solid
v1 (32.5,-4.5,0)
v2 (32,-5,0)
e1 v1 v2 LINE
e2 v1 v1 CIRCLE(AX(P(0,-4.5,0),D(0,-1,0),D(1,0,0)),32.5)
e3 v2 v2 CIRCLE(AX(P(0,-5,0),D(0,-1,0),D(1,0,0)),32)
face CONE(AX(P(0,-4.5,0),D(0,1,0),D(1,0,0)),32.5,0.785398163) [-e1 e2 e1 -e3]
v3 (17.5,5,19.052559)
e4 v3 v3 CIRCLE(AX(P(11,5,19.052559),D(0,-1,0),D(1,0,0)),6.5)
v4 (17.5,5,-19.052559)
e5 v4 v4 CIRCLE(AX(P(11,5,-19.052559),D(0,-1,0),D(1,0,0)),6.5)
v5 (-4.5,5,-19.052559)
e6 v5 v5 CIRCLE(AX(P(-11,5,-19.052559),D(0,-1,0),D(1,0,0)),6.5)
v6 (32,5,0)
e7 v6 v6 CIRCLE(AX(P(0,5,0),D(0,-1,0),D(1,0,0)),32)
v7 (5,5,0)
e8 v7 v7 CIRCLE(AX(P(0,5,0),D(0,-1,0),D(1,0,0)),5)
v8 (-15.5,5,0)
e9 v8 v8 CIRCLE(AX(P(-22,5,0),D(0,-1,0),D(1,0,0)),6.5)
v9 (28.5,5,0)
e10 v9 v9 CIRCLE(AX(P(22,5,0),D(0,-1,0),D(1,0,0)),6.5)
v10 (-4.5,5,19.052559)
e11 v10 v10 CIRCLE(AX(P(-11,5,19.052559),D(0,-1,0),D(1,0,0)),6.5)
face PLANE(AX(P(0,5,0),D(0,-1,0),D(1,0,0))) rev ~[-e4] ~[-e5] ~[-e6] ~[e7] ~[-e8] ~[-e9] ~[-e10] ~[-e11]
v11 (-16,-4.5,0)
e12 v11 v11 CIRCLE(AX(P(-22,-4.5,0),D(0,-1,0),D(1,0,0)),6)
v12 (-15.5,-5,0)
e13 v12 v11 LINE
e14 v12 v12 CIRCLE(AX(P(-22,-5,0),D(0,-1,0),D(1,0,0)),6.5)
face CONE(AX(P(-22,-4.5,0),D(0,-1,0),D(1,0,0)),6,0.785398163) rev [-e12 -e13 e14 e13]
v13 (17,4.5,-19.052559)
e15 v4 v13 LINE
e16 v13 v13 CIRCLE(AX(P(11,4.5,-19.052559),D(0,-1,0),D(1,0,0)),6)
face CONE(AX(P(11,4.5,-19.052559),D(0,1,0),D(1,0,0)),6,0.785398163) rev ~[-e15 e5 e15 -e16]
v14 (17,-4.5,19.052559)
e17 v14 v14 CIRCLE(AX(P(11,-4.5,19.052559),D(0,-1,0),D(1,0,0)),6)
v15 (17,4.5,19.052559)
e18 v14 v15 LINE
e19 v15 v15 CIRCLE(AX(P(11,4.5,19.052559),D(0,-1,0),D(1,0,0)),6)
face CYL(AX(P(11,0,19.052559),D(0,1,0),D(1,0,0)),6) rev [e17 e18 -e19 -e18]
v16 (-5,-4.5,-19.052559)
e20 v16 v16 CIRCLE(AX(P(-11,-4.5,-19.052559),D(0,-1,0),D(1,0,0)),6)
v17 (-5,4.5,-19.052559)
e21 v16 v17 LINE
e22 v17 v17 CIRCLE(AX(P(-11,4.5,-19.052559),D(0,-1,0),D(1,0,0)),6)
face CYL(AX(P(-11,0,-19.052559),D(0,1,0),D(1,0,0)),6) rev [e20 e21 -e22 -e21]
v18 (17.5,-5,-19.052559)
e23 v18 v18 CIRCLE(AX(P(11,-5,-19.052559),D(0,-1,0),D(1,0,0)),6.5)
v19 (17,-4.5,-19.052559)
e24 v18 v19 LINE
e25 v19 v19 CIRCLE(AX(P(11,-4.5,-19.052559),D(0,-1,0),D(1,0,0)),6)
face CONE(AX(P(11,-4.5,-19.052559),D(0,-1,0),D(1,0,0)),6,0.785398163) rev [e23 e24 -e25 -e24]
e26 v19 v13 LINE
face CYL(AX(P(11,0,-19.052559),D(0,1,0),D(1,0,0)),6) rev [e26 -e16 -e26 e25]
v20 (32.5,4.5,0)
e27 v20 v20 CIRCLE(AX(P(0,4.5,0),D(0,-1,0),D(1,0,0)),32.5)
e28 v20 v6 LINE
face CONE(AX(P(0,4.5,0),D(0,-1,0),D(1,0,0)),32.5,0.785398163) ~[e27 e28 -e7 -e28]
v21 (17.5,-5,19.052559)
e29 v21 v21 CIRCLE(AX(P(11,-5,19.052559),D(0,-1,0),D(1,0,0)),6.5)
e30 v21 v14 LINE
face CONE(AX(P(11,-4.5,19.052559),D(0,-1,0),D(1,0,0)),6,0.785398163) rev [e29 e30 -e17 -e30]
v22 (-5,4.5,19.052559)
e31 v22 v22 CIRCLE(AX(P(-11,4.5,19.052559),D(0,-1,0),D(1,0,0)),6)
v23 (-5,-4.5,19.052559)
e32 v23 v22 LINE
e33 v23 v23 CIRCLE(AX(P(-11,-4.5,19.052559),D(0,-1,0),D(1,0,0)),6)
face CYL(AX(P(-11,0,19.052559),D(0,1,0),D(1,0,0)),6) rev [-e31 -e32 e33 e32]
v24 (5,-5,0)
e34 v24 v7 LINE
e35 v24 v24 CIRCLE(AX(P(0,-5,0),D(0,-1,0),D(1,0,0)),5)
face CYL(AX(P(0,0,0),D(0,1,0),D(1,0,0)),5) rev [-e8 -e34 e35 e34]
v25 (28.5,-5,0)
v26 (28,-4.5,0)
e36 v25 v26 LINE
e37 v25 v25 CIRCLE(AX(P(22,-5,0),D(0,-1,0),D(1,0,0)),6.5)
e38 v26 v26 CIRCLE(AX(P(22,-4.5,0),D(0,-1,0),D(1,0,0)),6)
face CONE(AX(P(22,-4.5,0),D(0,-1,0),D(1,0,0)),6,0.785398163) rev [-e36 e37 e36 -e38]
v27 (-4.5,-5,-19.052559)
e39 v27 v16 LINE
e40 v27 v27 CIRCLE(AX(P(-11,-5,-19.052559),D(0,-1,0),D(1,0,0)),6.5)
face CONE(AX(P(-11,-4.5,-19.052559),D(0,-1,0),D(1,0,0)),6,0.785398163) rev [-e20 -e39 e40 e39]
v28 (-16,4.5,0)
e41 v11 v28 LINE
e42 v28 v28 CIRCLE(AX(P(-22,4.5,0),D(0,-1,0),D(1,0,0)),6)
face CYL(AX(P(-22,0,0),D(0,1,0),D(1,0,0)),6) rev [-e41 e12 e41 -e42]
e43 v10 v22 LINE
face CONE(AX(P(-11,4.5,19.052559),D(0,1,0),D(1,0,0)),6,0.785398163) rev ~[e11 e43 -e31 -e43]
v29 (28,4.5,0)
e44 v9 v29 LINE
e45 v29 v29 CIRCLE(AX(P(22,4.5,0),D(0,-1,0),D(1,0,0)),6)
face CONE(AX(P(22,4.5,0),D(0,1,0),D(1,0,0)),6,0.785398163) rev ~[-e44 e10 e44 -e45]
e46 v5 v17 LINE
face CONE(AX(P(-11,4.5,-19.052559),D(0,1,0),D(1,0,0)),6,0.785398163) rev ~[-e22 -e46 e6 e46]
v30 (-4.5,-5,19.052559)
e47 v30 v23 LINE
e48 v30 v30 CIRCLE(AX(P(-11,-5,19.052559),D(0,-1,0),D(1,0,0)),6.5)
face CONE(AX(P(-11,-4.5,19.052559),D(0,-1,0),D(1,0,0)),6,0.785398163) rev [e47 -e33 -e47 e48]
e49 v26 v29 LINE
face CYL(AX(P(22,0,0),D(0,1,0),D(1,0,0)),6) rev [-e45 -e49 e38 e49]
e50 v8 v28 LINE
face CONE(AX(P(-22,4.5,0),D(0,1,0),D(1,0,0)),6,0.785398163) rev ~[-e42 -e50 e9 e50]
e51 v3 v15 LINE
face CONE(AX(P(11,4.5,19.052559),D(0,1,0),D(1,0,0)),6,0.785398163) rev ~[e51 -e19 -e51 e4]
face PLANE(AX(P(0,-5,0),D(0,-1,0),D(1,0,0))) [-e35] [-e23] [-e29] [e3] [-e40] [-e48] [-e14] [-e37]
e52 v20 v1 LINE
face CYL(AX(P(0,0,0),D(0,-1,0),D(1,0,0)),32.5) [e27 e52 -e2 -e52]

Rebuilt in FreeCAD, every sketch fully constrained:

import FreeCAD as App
import Part
import Sketcher

V = App.Vector


def edges_at(feature, points):
    """Names of the edges that pass closest to the given points."""
    edges = feature.Shape.Edges
    near = lambda p: min(range(len(edges)), key=lambda i: edges[i].distToShape(Part.Vertex(*p))[0])
    return sorted({f"Edge{near(p) + 1}" for p in points})

doc = App.newDocument("Part")
body = doc.addObject("PartDesign::Body", "Body")

# Sketch on XZ plane
sketch1 = body.newObject("Sketcher::SketchObject", "Sketch")
sketch1.AttachmentSupport = (doc.getObject("XZ_Plane"), [""])
sketch1.MapMode = "FlatFace"
sketch1.addGeometry(Part.Circle(V(0, 0, 0), V(0, 0, 1), 32.5), False)
sketch1.addGeometry(Part.Circle(V(-11, -19.052559, 0), V(0, 0, 1), 6), False)
sketch1.addGeometry(Part.Circle(V(-22, 0, 0), V(0, 0, 1), 6), False)
sketch1.addGeometry(Part.Circle(V(11, -19.052559, 0), V(0, 0, 1), 6), False)
sketch1.addGeometry(Part.Circle(V(0, 0, 0), V(0, 0, 1), 5), False)
sketch1.addGeometry(Part.Circle(V(22, 0, 0), V(0, 0, 1), 6), False)
sketch1.addGeometry(Part.Circle(V(-11, 19.052559, 0), V(0, 0, 1), 6), False)
sketch1.addGeometry(Part.Circle(V(11, 19.052559, 0), V(0, 0, 1), 6), False)
sketch1.addConstraint(Sketcher.Constraint("Coincident", 0, 3, -1, 1))
sketch1.addConstraint(Sketcher.Constraint("Coincident", 4, 3, -1, 1))
sketch1.addConstraint(Sketcher.Constraint("Equal", 1, 2))
sketch1.addConstraint(Sketcher.Constraint("Equal", 2, 3))
sketch1.addConstraint(Sketcher.Constraint("Equal", 3, 5))
sketch1.addConstraint(Sketcher.Constraint("Equal", 5, 6))
sketch1.addConstraint(Sketcher.Constraint("Equal", 6, 7))
sketch1.addConstraint(Sketcher.Constraint("Symmetric", 2, 3, 5, 3, -1, 1))
sketch1.addConstraint(Sketcher.Constraint("Symmetric", 3, 3, 6, 3, -1, 1))
sketch1.addConstraint(Sketcher.Constraint("Symmetric", 1, 3, 7, 3, -1, 1))
sketch1.addConstraint(Sketcher.Constraint("Symmetric", 1, 3, 3, 3, -2))
sketch1.addConstraint(Sketcher.Constraint("PointOnObject", 2, 3, -1))
sketch1.addConstraint(Sketcher.Constraint("Diameter", 0, 65.0))
sketch1.addConstraint(Sketcher.Constraint("Diameter", 1, 12.0))
sketch1.addConstraint(Sketcher.Constraint("Diameter", 4, 10.0))
sketch1.addConstraint(Sketcher.Constraint("DistanceX", 1, 3, -1, 1, 11.0))
sketch1.addConstraint(Sketcher.Constraint("DistanceX", 2, 3, -1, 1, 22.0))
sketch1.addConstraint(Sketcher.Constraint("DistanceY", 1, 3, -1, 1, 19.052559))
pad1 = body.newObject("PartDesign::Pad", "Pad")
pad1.Profile = sketch1
pad1.Length = 10
pad1.Midplane = True
doc.recompute()

chamfer = body.newObject("PartDesign::Chamfer", "Chamfer")
chamfer.Base = (pad1, edges_at(pad1, [(-32.5, -5, 0)]))
chamfer.Size = 0.5
doc.recompute()

chamfer2 = body.newObject("PartDesign::Chamfer", "Chamfer001")
chamfer2.Base = (chamfer, edges_at(chamfer, [
    (5, 5, -19.053),
    (5, -5, -19.053),
    (16, 5, 0),
    (5, 5, 19.053),
    (-32.5, 5, 0),
    (-17, 5, 19.053),
    (-28, 5, 0),
    (-17, 5, -19.053),
    (16, -5, 0),
    (5, -5, 19.053),
    (-17, -5, 19.053),
    (-17, -5, -19.053),
]))
chamfer2.Size = 0.5
doc.recompute()

chamfer3 = body.newObject("PartDesign::Chamfer", "Chamfer002")
chamfer3.Base = (chamfer2, edges_at(chamfer2, [(-28, -5, 0)]))
chamfer3.Size = 0.5

doc.recompute()
